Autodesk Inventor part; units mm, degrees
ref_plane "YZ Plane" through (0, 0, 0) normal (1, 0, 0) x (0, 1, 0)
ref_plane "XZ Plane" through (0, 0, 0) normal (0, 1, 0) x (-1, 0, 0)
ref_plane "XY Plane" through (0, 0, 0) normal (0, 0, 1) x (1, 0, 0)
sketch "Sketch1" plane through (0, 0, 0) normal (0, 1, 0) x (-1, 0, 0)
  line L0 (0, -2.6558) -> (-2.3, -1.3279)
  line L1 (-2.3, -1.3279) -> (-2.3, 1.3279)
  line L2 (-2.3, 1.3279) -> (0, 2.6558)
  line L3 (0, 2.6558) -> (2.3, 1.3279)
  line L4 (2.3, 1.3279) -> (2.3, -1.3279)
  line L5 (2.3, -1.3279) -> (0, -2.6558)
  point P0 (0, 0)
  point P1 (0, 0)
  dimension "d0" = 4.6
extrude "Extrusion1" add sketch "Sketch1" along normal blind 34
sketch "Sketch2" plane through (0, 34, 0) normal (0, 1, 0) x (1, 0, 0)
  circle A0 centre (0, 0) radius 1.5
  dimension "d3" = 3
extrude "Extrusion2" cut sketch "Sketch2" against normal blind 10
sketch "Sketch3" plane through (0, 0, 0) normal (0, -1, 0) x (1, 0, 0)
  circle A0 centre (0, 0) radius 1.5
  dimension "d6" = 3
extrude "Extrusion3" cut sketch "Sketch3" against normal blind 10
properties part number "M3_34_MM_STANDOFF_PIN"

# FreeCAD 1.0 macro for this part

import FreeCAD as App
import Part
import Sketcher
Q = App.Units.Quantity

doc = App.newDocument("Part")
params = doc.addObject("Spreadsheet::Sheet", "Params")
for row, (alias, value) in enumerate([
    ("pad1_length", "34 mm"),
    ("sketch2_diameter", "3 mm"),
    ("pocket1_length", "10 mm"),
    ("sketch3_diameter", "3 mm"),
    ("pocket2_length", "10 mm"),
], start=1):
    params.set(f"A{row}", alias)
    params.set(f"B{row}", "=" + value)
    params.setAlias(f"B{row}", alias)

body = doc.addObject("PartDesign::Body", "Body")

# Sketch on XZ plane
sketch1 = body.newObject("Sketcher::SketchObject", "Sketch")
sketch1.AttachmentSupport = (doc.getObject("XZ_Plane"), [""])
sketch1.MapMode = "FlatFace"
sketch1.addGeometry([
    Part.LineSegment(App.Vector(2.3, -1.3, 0), App.Vector(0, -2.7, 0)),  # 0
    Part.LineSegment(App.Vector(0, -2.7, 0), App.Vector(-2.3, -1.3, 0)),  # 1
    Part.LineSegment(App.Vector(-2.3, -1.3, 0), App.Vector(-2.3, 1.3, 0)),  # 2
    Part.LineSegment(App.Vector(-2.3, 1.3, 0), App.Vector(0, 2.7, 0)),  # 3
    Part.LineSegment(App.Vector(0, 2.7, 0), App.Vector(2.3, 1.3, 0)),  # 4
    Part.LineSegment(App.Vector(2.3, 1.3, 0), App.Vector(2.3, -1.3, 0)),  # 5
], False)
sketch1.addConstraint([
    Sketcher.Constraint("Coincident", 0, 2, 1, 1),
    Sketcher.Constraint("Coincident", 1, 2, 2, 1),
    Sketcher.Constraint("Coincident", 2, 2, 3, 1),
    Sketcher.Constraint("Coincident", 3, 2, 4, 1),
    Sketcher.Constraint("Coincident", 4, 2, 5, 1),
    Sketcher.Constraint("Coincident", 5, 2, 0, 1),
    Sketcher.Constraint("Vertical", 2),
    Sketcher.Constraint("Vertical", 5),
    Sketcher.Constraint("Symmetric", 0, 2, 3, 2, -1, 1),
    Sketcher.Constraint("Symmetric", 1, 2, 4, 2, -1, 1),
    Sketcher.Constraint("PointOnObject", 0, 2, -2),
    Sketcher.Constraint("Parallel", 0, 3),
    Sketcher.Constraint("Horizontal", 2, 2, 4, 2),
    Sketcher.Constraint("DistanceX", 2, 2, 4, 2, Q("4.6 mm")),
    Sketcher.Constraint("Angle", 0, Q("-150 deg")),
    Sketcher.Constraint("DistanceY", 2, 1, 2, 2, Q("2.6558 mm")),
])
pad1 = body.newObject("PartDesign::Pad", "Pad")
pad1.Profile = sketch1
pad1.setExpression("Length", "Params.pad1_length")
pad1.Reversed = True

# Sketch on XZ plane
sketch2 = body.newObject("Sketcher::SketchObject", "Sketch001")
sketch2.AttachmentSupport = (doc.getObject("XZ_Plane"), [""])
sketch2.MapMode = "FlatFace"
sketch2.AttachmentOffset = App.Placement(App.Vector(0, 0, -34), App.Rotation())
sketch2.addGeometry(Part.Circle(App.Vector(0, 0, 0), App.Vector(0, 0, 1), 1.5), False)
sketch2.addConstraint([
    Sketcher.Constraint("Coincident", 0, 3, -1, 1),
    Sketcher.Constraint("Diameter", 0, Q("3 mm")),
])
sketch2.setExpression("Constraints[1]", "Params.sketch2_diameter")
pocket1 = body.newObject("PartDesign::Pocket", "Pocket")
pocket1.Profile = sketch2
pocket1.setExpression("Length", "Params.pocket1_length")
pocket1.Reversed = True

# Sketch on XZ plane
sketch3 = body.newObject("Sketcher::SketchObject", "Sketch002")
sketch3.AttachmentSupport = (doc.getObject("XZ_Plane"), [""])
sketch3.MapMode = "FlatFace"
sketch3.addGeometry(Part.Circle(App.Vector(0, 0, 0), App.Vector(0, 0, 1), 1.5), False)
sketch3.addConstraint([
    Sketcher.Constraint("Coincident", 0, 3, -1, 1),
    Sketcher.Constraint("Diameter", 0, Q("3 mm")),
])
sketch3.setExpression("Constraints[1]", "Params.sketch3_diameter")
pocket2 = body.newObject("PartDesign::Pocket", "Pocket001")
pocket2.Profile = sketch3
pocket2.setExpression("Length", "Params.pocket2_length")

doc.recompute()
